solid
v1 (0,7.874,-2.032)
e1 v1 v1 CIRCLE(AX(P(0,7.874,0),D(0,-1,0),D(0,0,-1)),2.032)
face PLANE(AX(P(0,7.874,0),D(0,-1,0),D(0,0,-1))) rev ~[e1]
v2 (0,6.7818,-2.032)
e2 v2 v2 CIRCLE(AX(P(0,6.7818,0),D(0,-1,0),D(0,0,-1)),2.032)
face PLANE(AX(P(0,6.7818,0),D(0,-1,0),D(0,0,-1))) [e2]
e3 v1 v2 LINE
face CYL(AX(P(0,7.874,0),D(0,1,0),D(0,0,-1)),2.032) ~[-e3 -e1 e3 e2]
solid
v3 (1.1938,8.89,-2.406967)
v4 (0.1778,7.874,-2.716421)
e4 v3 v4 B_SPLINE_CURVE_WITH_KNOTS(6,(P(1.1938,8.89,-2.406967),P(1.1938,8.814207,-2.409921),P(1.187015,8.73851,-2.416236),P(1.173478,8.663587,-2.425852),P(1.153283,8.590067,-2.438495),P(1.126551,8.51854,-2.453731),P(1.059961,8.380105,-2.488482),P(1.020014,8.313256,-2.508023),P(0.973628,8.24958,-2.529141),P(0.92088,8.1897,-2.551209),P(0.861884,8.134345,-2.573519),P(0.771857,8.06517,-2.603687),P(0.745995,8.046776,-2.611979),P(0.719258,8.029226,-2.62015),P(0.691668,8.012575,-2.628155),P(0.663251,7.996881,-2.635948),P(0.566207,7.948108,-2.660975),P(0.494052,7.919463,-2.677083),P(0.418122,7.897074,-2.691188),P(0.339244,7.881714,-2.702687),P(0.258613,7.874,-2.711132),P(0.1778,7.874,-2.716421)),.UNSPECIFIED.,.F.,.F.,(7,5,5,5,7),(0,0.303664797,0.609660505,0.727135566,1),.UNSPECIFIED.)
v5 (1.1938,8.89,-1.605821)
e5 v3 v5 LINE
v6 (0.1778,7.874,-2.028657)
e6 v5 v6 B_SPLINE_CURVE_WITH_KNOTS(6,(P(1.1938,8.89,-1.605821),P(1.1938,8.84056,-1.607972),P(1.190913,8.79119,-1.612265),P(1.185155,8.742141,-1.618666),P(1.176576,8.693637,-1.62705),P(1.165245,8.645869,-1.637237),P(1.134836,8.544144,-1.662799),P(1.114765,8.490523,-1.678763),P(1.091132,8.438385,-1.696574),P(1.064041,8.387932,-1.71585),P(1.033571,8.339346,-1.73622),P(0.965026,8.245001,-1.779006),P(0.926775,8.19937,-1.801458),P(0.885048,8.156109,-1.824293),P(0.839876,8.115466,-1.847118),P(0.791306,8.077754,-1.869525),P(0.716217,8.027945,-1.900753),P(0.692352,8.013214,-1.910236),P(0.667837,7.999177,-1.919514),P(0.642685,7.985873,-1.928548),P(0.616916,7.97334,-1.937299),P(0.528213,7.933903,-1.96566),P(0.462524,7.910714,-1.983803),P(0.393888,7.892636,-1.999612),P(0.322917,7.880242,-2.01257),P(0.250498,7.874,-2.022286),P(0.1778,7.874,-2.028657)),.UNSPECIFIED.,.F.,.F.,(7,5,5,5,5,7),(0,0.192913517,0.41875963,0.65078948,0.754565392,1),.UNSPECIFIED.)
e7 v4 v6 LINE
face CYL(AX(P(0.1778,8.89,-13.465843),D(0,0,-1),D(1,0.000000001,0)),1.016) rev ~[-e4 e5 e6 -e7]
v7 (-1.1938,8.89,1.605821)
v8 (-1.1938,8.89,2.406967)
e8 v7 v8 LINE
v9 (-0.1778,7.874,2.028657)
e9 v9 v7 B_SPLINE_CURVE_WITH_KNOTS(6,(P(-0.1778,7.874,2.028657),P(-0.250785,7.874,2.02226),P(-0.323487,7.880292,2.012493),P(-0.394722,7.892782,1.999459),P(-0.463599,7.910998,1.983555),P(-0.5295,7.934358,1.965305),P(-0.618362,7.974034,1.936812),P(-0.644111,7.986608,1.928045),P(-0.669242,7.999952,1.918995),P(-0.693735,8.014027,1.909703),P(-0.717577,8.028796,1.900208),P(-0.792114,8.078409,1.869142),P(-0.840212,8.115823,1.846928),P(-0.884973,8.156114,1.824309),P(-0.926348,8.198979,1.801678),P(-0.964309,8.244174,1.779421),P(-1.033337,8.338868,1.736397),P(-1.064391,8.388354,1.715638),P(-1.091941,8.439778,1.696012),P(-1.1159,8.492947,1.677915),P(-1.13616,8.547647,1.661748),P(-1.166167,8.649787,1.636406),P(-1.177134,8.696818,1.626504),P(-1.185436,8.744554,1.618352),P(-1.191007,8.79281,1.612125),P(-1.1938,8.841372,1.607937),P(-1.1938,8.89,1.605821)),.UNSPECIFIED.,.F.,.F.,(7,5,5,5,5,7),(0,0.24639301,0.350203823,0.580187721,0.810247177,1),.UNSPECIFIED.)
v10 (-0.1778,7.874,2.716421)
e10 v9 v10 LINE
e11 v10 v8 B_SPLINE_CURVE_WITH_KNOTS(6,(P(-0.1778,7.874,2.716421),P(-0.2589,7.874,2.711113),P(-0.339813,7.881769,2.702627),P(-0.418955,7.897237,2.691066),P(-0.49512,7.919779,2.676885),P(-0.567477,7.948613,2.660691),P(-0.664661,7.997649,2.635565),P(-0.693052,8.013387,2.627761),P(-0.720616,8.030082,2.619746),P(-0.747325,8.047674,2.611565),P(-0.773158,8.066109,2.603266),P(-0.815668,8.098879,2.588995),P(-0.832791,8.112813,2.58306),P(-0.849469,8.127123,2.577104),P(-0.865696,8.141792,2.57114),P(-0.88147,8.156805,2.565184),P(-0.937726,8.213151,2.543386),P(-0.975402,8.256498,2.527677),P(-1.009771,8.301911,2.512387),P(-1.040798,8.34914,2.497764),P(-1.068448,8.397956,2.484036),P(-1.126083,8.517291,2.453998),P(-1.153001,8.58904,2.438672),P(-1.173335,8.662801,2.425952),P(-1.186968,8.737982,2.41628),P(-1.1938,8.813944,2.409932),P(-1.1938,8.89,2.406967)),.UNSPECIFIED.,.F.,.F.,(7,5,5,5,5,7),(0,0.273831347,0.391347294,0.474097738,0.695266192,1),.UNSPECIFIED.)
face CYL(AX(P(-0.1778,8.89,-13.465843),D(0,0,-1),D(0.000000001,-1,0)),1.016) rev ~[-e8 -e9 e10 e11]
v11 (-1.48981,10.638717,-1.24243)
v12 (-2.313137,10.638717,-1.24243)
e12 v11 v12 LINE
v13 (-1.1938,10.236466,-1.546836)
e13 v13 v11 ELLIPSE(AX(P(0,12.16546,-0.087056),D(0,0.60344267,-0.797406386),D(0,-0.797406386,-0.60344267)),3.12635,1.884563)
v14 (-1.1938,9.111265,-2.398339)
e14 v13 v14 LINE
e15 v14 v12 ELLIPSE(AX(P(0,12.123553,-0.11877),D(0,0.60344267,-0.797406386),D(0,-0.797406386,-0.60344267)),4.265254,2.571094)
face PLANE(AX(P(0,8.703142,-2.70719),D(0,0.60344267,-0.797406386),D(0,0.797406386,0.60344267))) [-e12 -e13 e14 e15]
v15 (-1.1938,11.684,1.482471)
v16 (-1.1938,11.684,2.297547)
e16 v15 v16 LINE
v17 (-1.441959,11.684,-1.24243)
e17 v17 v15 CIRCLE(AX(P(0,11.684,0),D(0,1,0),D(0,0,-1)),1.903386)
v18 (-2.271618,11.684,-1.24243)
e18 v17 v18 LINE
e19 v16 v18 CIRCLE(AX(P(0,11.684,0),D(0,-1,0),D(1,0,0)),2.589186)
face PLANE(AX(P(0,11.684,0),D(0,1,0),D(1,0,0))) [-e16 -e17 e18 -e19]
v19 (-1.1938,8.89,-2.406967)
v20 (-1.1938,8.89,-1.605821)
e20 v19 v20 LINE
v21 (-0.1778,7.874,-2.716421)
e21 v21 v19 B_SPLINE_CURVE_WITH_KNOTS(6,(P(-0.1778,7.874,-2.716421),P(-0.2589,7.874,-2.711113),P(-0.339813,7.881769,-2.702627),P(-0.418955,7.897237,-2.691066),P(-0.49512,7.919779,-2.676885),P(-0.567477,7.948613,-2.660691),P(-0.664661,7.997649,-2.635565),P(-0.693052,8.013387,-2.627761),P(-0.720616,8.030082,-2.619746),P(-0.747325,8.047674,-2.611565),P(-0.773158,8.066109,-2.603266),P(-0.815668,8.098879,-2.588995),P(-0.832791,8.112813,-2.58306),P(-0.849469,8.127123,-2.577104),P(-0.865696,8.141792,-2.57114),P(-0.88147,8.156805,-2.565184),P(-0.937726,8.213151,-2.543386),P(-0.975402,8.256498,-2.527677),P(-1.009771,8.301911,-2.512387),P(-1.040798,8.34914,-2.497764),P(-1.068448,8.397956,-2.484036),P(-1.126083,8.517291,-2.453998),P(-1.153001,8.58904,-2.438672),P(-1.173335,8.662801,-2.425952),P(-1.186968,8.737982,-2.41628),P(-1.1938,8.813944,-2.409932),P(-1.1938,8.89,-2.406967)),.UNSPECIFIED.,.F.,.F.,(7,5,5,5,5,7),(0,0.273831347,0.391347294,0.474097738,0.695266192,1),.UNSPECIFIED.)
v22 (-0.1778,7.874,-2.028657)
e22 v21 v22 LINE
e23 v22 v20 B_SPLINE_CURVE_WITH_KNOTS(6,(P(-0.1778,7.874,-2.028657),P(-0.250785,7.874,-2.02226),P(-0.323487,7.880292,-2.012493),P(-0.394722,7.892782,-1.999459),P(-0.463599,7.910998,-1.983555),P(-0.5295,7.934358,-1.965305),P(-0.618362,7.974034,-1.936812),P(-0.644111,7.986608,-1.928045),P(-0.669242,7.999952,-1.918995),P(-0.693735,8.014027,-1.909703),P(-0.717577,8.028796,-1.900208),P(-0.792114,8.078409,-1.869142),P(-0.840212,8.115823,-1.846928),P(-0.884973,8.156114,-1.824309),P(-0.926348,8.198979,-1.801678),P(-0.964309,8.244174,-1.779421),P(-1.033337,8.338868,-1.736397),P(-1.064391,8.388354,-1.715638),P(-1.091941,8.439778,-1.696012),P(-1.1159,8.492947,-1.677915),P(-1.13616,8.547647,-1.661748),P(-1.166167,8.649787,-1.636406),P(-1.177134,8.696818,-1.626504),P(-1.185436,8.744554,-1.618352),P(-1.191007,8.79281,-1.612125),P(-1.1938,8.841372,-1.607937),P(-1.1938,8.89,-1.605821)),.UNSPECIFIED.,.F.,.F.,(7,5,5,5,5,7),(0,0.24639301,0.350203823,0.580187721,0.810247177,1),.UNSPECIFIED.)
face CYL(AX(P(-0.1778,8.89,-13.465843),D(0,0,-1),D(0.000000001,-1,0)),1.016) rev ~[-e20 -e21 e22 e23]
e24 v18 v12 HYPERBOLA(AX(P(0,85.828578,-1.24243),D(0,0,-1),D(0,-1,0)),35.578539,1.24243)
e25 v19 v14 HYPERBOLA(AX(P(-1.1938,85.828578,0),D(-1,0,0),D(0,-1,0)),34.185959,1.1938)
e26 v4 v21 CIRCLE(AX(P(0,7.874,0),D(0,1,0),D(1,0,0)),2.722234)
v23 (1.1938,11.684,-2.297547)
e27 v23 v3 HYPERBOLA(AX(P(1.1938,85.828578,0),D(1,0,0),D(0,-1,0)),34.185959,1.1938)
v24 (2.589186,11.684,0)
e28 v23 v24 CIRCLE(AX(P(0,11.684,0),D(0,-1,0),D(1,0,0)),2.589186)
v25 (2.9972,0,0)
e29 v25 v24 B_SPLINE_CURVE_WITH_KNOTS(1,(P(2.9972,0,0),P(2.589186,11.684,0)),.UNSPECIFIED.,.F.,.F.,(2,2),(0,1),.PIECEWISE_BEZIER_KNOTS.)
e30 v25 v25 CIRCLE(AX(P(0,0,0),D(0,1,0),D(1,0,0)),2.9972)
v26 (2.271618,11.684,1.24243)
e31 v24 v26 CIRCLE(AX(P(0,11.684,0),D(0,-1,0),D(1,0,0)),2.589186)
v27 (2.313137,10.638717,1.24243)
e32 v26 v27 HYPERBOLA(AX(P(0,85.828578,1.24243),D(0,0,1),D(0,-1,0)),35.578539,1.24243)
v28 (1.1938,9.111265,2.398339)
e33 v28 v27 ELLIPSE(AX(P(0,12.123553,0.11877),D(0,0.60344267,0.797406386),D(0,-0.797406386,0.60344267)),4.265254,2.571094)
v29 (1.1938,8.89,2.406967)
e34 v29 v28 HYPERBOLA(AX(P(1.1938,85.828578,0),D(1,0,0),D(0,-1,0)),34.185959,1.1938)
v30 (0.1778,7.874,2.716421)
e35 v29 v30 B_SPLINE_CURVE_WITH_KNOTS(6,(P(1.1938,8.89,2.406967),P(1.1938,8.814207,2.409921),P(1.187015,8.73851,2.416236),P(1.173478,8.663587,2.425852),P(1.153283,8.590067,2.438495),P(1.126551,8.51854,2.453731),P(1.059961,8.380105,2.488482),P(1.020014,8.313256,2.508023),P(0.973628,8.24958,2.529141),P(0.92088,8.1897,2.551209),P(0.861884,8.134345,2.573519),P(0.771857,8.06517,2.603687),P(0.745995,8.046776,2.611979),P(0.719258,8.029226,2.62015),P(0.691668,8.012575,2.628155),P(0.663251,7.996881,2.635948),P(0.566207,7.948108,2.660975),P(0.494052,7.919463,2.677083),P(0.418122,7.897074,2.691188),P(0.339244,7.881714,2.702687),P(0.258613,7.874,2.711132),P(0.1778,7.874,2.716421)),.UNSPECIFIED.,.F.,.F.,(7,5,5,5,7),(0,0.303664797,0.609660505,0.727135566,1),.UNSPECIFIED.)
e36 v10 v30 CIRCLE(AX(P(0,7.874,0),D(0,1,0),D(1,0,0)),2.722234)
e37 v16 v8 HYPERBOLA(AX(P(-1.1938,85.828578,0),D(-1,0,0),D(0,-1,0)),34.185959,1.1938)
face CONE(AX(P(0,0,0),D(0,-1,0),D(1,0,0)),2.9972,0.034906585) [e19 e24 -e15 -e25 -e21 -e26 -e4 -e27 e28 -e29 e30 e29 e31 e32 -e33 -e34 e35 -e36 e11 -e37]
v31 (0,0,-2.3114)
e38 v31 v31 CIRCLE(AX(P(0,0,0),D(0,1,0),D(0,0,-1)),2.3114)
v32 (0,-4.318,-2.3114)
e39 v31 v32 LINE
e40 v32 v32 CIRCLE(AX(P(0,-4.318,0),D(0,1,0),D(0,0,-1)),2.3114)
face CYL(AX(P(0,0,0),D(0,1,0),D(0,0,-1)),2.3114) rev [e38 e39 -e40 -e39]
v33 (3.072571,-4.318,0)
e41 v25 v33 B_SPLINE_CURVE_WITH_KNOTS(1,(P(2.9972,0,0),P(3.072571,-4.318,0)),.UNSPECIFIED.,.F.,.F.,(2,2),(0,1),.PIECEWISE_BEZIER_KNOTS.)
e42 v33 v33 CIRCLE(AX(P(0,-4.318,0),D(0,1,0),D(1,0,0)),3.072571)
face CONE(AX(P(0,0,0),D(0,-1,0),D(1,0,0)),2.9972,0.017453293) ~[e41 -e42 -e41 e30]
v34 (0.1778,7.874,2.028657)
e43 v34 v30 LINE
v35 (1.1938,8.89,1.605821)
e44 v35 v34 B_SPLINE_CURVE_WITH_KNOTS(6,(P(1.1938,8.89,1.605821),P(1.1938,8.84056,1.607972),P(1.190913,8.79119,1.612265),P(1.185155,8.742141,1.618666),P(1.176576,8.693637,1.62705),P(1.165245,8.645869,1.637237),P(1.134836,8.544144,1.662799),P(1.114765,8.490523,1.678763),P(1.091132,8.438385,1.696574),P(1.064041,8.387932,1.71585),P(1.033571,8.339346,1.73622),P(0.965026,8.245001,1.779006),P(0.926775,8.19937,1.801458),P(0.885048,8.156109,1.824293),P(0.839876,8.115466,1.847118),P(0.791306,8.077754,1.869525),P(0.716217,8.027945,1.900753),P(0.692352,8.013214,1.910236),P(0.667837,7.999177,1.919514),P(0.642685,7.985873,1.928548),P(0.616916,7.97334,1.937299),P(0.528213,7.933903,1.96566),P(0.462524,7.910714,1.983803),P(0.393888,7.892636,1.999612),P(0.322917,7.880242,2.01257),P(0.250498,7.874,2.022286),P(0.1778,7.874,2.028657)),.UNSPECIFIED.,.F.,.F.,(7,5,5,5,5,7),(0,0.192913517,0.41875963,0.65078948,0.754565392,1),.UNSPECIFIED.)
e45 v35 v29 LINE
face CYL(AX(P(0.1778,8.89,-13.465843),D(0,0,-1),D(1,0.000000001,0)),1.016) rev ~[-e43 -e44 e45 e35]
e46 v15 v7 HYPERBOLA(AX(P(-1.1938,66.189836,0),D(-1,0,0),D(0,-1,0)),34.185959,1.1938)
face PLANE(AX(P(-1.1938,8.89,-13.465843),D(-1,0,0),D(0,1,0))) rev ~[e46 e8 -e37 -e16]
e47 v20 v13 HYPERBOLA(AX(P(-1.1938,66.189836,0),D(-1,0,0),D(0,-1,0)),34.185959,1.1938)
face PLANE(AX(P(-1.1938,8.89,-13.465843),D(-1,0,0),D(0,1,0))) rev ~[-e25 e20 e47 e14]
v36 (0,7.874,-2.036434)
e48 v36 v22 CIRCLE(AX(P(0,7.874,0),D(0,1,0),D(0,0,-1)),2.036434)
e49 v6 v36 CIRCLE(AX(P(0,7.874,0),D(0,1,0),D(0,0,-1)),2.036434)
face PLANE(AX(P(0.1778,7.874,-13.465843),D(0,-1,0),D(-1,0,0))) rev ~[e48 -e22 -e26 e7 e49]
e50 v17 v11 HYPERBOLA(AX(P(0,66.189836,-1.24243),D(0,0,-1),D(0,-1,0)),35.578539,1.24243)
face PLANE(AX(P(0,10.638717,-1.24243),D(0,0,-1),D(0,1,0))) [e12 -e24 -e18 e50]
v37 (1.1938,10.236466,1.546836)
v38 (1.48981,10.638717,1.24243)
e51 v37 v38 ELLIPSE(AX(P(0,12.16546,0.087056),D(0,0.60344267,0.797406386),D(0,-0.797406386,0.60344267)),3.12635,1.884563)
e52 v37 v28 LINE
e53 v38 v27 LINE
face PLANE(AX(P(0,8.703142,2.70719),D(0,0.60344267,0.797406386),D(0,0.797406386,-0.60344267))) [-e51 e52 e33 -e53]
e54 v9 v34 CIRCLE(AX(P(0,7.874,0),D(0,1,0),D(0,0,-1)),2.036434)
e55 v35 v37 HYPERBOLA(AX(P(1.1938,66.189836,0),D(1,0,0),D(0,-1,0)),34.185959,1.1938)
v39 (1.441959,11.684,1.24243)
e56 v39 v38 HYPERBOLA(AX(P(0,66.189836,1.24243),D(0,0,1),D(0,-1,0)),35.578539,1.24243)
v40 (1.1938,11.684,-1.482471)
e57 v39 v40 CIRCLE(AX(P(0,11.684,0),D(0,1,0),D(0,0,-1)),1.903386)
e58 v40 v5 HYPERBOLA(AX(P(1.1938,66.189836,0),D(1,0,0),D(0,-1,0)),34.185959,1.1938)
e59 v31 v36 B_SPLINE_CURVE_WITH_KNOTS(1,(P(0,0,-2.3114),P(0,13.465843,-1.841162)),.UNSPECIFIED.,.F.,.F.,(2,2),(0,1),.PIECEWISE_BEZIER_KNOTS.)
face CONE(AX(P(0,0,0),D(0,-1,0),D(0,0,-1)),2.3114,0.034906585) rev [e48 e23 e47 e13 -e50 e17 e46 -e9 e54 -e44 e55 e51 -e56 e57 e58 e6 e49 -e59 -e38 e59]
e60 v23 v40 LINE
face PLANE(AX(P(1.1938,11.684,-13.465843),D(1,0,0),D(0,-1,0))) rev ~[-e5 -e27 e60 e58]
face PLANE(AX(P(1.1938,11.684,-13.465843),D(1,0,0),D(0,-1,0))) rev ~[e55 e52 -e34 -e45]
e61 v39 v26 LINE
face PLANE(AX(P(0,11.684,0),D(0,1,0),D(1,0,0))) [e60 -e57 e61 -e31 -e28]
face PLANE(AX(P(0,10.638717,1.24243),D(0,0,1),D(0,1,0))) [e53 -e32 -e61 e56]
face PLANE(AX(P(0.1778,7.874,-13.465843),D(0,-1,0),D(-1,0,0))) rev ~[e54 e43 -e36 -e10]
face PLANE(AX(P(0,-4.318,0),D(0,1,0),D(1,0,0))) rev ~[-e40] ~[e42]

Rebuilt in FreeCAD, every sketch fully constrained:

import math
import FreeCAD as App
import Part
import Sketcher
Q = App.Units.Quantity

doc = App.newDocument("Part")
body = doc.addObject("PartDesign::Body", "Body")

sketch1 = doc.addObject("Sketcher::SketchObject", "Sketch")
body.addObject(sketch1)
sketch1.AttachmentSupport = (doc.XZ_Plane, [""])
sketch1.MapMode = "FlatFace"
sketch1.addGeometry(Part.Circle(App.Vector(0, 0, 0), App.Vector(0, 0, 1), 2.9972), False)
sketch1.addConstraint([
    Sketcher.Constraint("Coincident", 0, 3, -1, 1),
    Sketcher.Constraint("Diameter", 0, Q("0.236 in")),
])
pad1 = doc.addObject("PartDesign::Pad", "Pad")
body.addObject(pad1)
pad1.Profile = sketch1
pad1.Length = Q("0.46 in")
pad1.Reversed = True
pad1.TaperAngle = -2

sketch2 = doc.addObject("Sketcher::SketchObject", "Sketch001")
body.addObject(sketch2)
sketch2.AttachmentSupport = (doc.XZ_Plane, [""])
sketch2.MapMode = "FlatFace"
sketch2.addGeometry(Part.Circle(App.Vector(0, 0, 0), App.Vector(0, 0, 1), 2.9972), False)
sketch2.addConstraint([
    Sketcher.Constraint("Coincident", 0, 3, -1, 1),
    Sketcher.Constraint("Diameter", 0, Q("0.236 in")),
])
pad2 = doc.addObject("PartDesign::Pad", "Pad001")
body.addObject(pad2)
pad2.Profile = sketch2
pad2.Length = Q("0.17 in")
pad2.TaperAngle = 1

sketch3 = doc.addObject("Sketcher::SketchObject", "Sketch002")
body.addObject(sketch3)
sketch3.AttachmentSupport = (doc.XZ_Plane, [""])
sketch3.MapMode = "FlatFace"
sketch3.addGeometry(Part.Circle(App.Vector(0, 0, 0), App.Vector(0, 0, 1), 2.3114), False)
sketch3.addConstraint([
    Sketcher.Constraint("Coincident", 0, 3, -1, 1),
    Sketcher.Constraint("Diameter", 0, Q("0.182 in")),
])
pocket1 = doc.addObject("PartDesign::Pocket", "Pocket")
body.addObject(pocket1)
pocket1.Profile = sketch3
pocket1.Length = 13.465843
pocket1.TaperAngle = -2

sketch4 = doc.addObject("Sketcher::SketchObject", "Sketch003")
body.addObject(sketch4)
sketch4.AttachmentSupport = (doc.XZ_Plane, [""])
sketch4.MapMode = "FlatFace"
sketch4.addGeometry(Part.Circle(App.Vector(0, 0, 0), App.Vector(0, 0, 1), 2.3114), False)
sketch4.addConstraint([
    Sketcher.Constraint("Coincident", 0, 3, -1, 1),
    Sketcher.Constraint("Diameter", 0, Q("0.182 in")),
])
pocket2 = doc.addObject("PartDesign::Pocket", "Pocket001")
body.addObject(pocket2)
pocket2.Profile = sketch4
pocket2.Length = 13.465843
pocket2.Reversed = True

sketch5 = doc.addObject("Sketcher::SketchObject", "Sketch004")
body.addObject(sketch5)
sketch5.AttachmentSupport = (doc.XY_Plane, [""])
sketch5.MapMode = "FlatFace"
sketch5.addGeometry([
    Part.LineSegment(App.Vector(1.1938, 11.684, 0), App.Vector(-1.1938, 11.684, 0)),
    Part.LineSegment(App.Vector(-1.1938, 11.684, 0), App.Vector(-1.1938, 8.89, 0)),
    Part.ArcOfCircle(Part.Circle(App.Vector(-0.1778, 8.89, 0), App.Vector(0, 0, 1), 1.016), math.radians(180), math.radians(270)),
    Part.LineSegment(App.Vector(-0.1778, 7.874, 0), App.Vector(0.1778, 7.874, 0)),
    Part.ArcOfCircle(Part.Circle(App.Vector(0.1778, 8.89, 0), App.Vector(0, 0, 1), 1.016), math.radians(-90), math.radians(0)),
    Part.LineSegment(App.Vector(1.1938, 8.89, 0), App.Vector(1.1938, 11.684, 0)),
], False)
sketch5.addConstraint([
    Sketcher.Constraint("Coincident", 0, 2, 1, 1),
    Sketcher.Constraint("Tangent", 1, 2, 2, 1),
    Sketcher.Constraint("Tangent", 2, 2, 3, 1),
    Sketcher.Constraint("Tangent", 3, 2, 4, 1),
    Sketcher.Constraint("Tangent", 4, 2, 5, 1),
    Sketcher.Constraint("Coincident", 5, 2, 0, 1),
    Sketcher.Constraint("Horizontal", 0),
    Sketcher.Constraint("Vertical", 1),
    Sketcher.Constraint("Horizontal", 3),
    Sketcher.Constraint("Vertical", 5),
    Sketcher.Constraint("Equal", 2, 4),
    Sketcher.Constraint("Radius", 2, Q("0.04 in")),
    Sketcher.Constraint("DistanceY", 1, 2, 1, 1, Q("0.11 in")),
    Sketcher.Constraint("DistanceX", 0, 2, 0, 1, Q("0.094 in")),
    Sketcher.Constraint("DistanceY", -1, 1, 2, 3, Q("0.35 in")),
    Sketcher.Constraint("DistanceX", 2, 3, -1, 1, Q("0.007 in")),
])
pocket3 = doc.addObject("PartDesign::Pocket", "Pocket002")
body.addObject(pocket3)
pocket3.Profile = sketch5
pocket3.Type = "ThroughAll"
pocket3.Midplane = True

sketch6 = doc.addObject("Sketcher::SketchObject", "Sketch005")
body.addObject(sketch6)
sketch6.AttachmentSupport = (doc.YZ_Plane, [""])
sketch6.MapMode = "FlatFace"
sketch6.addGeometry([
    Part.LineSegment(App.Vector(11.684, -2.70719, 0), App.Vector(11.684, -1.24243, 0)),
    Part.LineSegment(App.Vector(11.684, -1.24243, 0), App.Vector(10.638717, -1.24243, 0)),
    Part.LineSegment(App.Vector(10.638717, -1.24243, 0), App.Vector(8.703142, -2.70719, 0)),
    Part.LineSegment(App.Vector(8.703142, -2.70719, 0), App.Vector(11.684, -2.70719, 0)),
], False)
sketch6.addConstraint([
    Sketcher.Constraint("Coincident", 0, 2, 1, 1),
    Sketcher.Constraint("Coincident", 1, 2, 2, 1),
    Sketcher.Constraint("Coincident", 2, 2, 3, 1),
    Sketcher.Constraint("Coincident", 3, 2, 0, 1),
    Sketcher.Constraint("Vertical", 0),
    Sketcher.Constraint("Horizontal", 1),
    Sketcher.Constraint("Horizontal", 3),
    Sketcher.Constraint("DistanceX", -1, 1, 0, 2, Q("0.46 in")),
    Sketcher.Constraint("DistanceX", 3, 1, 3, 2, Q("2.980858 mm")),
    Sketcher.Constraint("DistanceY", 0, 1, 0, 2, Q("1.46476 mm")),
    Sketcher.Constraint("Distance", 2, Q("2.427338 mm")),
    Sketcher.Constraint("DistanceY", 0, 2, -1, 1, Q("1.24243 mm")),
])
pocket4 = doc.addObject("PartDesign::Pocket", "Pocket003")
body.addObject(pocket4)
pocket4.Profile = sketch6
pocket4.Type = "ThroughAll"
doc.recompute()

polarpattern = doc.addObject("PartDesign::PolarPattern", "PolarPattern")
body.addObject(polarpattern)
polarpattern.Originals = [pocket4]
polarpattern.Axis = (doc.Y_Axis, [""])
polarpattern.Angle = 360
polarpattern.Occurrences = 2
body.Tip = polarpattern
body2 = doc.addObject("PartDesign::Body", "Body001")

sketch7 = doc.addObject("Sketcher::SketchObject", "Sketch006")
body2.addObject(sketch7)
sketch7.AttachmentSupport = (doc.getObject("XZ_Plane001"), [""])
sketch7.MapMode = "FlatFace"
sketch7.AttachmentOffset = App.Placement(App.Vector(0, 0, -0.31 * 25.4), App.Rotation())
sketch7.addGeometry(Part.Circle(App.Vector(0, 0, 0), App.Vector(0, 0, 1), 2.032), False)
sketch7.addConstraint([
    Sketcher.Constraint("Coincident", 0, 3, -1, 1),
    Sketcher.Constraint("Diameter", 0, Q("0.16 in")),
])
pad3 = doc.addObject("PartDesign::Pad", "Pad002")
body2.addObject(pad3)
pad3.Profile = sketch7
pad3.Length = Q("0.043 in")

doc.recompute()
